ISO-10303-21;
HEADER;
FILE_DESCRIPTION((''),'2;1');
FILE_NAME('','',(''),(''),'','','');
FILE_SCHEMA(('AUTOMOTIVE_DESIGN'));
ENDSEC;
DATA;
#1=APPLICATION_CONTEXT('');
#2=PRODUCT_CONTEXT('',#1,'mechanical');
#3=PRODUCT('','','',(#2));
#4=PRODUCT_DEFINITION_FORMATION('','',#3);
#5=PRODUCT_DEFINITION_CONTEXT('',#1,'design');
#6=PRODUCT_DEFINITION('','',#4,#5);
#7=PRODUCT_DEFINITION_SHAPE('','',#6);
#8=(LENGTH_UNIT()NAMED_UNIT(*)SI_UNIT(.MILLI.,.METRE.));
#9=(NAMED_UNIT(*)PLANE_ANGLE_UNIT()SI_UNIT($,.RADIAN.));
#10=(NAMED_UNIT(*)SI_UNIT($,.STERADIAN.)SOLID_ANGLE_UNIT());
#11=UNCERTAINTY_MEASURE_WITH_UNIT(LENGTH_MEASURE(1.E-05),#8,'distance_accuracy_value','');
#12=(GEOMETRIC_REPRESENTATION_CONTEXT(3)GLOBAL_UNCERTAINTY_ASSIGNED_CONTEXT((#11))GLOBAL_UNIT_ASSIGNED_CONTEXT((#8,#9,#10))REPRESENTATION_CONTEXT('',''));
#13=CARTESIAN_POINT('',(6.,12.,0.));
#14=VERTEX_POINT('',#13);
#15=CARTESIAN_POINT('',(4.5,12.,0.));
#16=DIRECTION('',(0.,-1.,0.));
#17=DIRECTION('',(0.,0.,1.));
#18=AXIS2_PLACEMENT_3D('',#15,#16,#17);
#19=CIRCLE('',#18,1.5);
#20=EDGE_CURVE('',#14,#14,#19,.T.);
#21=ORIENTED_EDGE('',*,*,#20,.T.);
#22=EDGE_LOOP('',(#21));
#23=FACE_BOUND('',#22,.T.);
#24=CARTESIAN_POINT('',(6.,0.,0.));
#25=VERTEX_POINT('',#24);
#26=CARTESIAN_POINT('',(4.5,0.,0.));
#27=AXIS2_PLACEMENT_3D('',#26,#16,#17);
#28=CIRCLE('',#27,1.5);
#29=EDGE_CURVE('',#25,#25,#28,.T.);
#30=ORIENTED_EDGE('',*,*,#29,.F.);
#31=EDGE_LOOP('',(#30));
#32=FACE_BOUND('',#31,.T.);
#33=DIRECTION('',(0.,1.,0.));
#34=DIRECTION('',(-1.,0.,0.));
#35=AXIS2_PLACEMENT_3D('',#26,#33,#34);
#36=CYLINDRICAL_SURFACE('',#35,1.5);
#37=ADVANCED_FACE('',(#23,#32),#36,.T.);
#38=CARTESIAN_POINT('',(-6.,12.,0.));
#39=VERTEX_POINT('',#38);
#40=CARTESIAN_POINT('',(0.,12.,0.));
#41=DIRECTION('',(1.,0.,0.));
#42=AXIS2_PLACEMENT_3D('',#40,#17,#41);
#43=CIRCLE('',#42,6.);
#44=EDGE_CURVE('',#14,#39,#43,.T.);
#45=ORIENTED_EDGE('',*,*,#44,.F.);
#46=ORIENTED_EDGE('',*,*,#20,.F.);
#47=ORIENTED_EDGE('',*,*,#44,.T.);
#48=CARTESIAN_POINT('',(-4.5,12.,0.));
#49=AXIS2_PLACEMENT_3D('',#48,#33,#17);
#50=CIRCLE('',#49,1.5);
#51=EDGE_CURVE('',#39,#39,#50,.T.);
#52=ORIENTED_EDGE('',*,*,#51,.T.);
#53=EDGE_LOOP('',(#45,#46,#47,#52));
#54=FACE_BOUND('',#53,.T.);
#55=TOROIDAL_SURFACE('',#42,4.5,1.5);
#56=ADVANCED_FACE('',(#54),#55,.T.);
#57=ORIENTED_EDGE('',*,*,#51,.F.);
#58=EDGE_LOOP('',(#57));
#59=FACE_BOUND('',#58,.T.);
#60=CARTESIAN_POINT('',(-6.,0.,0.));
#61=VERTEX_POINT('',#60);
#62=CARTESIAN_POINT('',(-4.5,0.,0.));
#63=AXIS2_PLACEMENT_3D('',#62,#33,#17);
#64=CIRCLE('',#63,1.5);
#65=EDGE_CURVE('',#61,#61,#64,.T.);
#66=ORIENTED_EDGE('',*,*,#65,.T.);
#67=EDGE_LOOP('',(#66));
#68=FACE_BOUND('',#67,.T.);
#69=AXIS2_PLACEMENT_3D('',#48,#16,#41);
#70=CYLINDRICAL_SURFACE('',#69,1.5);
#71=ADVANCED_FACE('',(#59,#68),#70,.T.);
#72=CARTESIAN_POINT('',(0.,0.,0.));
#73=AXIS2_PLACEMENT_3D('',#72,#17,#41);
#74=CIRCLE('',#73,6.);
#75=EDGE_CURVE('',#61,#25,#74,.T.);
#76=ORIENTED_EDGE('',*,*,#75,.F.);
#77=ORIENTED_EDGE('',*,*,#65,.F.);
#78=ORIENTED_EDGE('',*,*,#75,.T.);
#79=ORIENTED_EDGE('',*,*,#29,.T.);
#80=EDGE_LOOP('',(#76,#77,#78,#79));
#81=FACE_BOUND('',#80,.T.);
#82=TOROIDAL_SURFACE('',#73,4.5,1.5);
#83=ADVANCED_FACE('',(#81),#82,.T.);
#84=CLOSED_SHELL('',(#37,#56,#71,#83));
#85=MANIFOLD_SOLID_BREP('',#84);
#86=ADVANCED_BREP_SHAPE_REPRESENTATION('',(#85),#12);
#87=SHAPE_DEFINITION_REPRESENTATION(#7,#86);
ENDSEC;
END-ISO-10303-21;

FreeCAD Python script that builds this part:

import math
import FreeCAD as App
import Part
import Sketcher
Q = App.Units.Quantity

doc = App.newDocument("Part")
body = doc.addObject("PartDesign::Body", "Body")

# Sketch on XZ plane
sketch1 = body.newObject("Sketcher::SketchObject", "Sketch")
sketch1.AttachmentSupport = (doc.getObject("XZ_Plane"), [""])
sketch1.MapMode = "FlatFace"
sketch1.addGeometry(Part.Circle(App.Vector(-4.5, 0, 0), App.Vector(0, 0, 1), 1.5), False)
sketch1.addConstraint(Sketcher.Constraint("PointOnObject", 0, 3, -1))
sketch1.addConstraint(Sketcher.Constraint("Diameter", 0, Q("3 mm")))
sketch1.addConstraint(Sketcher.Constraint("DistanceX", 0, 3, -1, 1, Q("4.5 mm")))

# Sketch on XY plane
sketch2 = body.newObject("Sketcher::SketchObject", "Sketch001")
sketch2.AttachmentSupport = (doc.getObject("XY_Plane"), [""])
sketch2.MapMode = "FlatFace"
sketch2.addGeometry(Part.LineSegment(App.Vector(-4.5, 0, 0), App.Vector(-4.5, 12, 0)), False)
sketch2.addGeometry(Part.ArcOfCircle(Part.Circle(App.Vector(0, 12, 0), App.Vector(0, 0, 1), 4.5), math.radians(0), math.radians(180)), False)
sketch2.addGeometry(Part.LineSegment(App.Vector(4.5, 12, 0), App.Vector(4.5, 0, 0)), False)
sketch2.addGeometry(Part.ArcOfCircle(Part.Circle(App.Vector(0, 0, 0), App.Vector(0, 0, 1), 4.5), math.radians(180), math.radians(360)), False)
sketch2.addConstraint(Sketcher.Constraint("Tangent", 0, 2, 1, 2))
sketch2.addConstraint(Sketcher.Constraint("Tangent", 1, 1, 2, 1))
sketch2.addConstraint(Sketcher.Constraint("Tangent", 2, 2, 3, 2))
sketch2.addConstraint(Sketcher.Constraint("Tangent", 3, 1, 0, 1))
sketch2.addConstraint(Sketcher.Constraint("Vertical", 0))
sketch2.addConstraint(Sketcher.Constraint("Vertical", 2))
sketch2.addConstraint(Sketcher.Constraint("Coincident", 3, 3, -1, 1))
sketch2.addConstraint(Sketcher.Constraint("Radius", 1, Q("4.5 mm")))
sketch2.addConstraint(Sketcher.Constraint("DistanceY", 0, 1, 0, 2, Q("12 mm")))
doc.recompute()

additivepipe = body.newObject("PartDesign::AdditivePipe", "AdditivePipe")
additivepipe.Profile = sketch1
additivepipe.Spine = (sketch2, ["Edge1", "Edge2", "Edge3", "Edge4"])

doc.recompute()
